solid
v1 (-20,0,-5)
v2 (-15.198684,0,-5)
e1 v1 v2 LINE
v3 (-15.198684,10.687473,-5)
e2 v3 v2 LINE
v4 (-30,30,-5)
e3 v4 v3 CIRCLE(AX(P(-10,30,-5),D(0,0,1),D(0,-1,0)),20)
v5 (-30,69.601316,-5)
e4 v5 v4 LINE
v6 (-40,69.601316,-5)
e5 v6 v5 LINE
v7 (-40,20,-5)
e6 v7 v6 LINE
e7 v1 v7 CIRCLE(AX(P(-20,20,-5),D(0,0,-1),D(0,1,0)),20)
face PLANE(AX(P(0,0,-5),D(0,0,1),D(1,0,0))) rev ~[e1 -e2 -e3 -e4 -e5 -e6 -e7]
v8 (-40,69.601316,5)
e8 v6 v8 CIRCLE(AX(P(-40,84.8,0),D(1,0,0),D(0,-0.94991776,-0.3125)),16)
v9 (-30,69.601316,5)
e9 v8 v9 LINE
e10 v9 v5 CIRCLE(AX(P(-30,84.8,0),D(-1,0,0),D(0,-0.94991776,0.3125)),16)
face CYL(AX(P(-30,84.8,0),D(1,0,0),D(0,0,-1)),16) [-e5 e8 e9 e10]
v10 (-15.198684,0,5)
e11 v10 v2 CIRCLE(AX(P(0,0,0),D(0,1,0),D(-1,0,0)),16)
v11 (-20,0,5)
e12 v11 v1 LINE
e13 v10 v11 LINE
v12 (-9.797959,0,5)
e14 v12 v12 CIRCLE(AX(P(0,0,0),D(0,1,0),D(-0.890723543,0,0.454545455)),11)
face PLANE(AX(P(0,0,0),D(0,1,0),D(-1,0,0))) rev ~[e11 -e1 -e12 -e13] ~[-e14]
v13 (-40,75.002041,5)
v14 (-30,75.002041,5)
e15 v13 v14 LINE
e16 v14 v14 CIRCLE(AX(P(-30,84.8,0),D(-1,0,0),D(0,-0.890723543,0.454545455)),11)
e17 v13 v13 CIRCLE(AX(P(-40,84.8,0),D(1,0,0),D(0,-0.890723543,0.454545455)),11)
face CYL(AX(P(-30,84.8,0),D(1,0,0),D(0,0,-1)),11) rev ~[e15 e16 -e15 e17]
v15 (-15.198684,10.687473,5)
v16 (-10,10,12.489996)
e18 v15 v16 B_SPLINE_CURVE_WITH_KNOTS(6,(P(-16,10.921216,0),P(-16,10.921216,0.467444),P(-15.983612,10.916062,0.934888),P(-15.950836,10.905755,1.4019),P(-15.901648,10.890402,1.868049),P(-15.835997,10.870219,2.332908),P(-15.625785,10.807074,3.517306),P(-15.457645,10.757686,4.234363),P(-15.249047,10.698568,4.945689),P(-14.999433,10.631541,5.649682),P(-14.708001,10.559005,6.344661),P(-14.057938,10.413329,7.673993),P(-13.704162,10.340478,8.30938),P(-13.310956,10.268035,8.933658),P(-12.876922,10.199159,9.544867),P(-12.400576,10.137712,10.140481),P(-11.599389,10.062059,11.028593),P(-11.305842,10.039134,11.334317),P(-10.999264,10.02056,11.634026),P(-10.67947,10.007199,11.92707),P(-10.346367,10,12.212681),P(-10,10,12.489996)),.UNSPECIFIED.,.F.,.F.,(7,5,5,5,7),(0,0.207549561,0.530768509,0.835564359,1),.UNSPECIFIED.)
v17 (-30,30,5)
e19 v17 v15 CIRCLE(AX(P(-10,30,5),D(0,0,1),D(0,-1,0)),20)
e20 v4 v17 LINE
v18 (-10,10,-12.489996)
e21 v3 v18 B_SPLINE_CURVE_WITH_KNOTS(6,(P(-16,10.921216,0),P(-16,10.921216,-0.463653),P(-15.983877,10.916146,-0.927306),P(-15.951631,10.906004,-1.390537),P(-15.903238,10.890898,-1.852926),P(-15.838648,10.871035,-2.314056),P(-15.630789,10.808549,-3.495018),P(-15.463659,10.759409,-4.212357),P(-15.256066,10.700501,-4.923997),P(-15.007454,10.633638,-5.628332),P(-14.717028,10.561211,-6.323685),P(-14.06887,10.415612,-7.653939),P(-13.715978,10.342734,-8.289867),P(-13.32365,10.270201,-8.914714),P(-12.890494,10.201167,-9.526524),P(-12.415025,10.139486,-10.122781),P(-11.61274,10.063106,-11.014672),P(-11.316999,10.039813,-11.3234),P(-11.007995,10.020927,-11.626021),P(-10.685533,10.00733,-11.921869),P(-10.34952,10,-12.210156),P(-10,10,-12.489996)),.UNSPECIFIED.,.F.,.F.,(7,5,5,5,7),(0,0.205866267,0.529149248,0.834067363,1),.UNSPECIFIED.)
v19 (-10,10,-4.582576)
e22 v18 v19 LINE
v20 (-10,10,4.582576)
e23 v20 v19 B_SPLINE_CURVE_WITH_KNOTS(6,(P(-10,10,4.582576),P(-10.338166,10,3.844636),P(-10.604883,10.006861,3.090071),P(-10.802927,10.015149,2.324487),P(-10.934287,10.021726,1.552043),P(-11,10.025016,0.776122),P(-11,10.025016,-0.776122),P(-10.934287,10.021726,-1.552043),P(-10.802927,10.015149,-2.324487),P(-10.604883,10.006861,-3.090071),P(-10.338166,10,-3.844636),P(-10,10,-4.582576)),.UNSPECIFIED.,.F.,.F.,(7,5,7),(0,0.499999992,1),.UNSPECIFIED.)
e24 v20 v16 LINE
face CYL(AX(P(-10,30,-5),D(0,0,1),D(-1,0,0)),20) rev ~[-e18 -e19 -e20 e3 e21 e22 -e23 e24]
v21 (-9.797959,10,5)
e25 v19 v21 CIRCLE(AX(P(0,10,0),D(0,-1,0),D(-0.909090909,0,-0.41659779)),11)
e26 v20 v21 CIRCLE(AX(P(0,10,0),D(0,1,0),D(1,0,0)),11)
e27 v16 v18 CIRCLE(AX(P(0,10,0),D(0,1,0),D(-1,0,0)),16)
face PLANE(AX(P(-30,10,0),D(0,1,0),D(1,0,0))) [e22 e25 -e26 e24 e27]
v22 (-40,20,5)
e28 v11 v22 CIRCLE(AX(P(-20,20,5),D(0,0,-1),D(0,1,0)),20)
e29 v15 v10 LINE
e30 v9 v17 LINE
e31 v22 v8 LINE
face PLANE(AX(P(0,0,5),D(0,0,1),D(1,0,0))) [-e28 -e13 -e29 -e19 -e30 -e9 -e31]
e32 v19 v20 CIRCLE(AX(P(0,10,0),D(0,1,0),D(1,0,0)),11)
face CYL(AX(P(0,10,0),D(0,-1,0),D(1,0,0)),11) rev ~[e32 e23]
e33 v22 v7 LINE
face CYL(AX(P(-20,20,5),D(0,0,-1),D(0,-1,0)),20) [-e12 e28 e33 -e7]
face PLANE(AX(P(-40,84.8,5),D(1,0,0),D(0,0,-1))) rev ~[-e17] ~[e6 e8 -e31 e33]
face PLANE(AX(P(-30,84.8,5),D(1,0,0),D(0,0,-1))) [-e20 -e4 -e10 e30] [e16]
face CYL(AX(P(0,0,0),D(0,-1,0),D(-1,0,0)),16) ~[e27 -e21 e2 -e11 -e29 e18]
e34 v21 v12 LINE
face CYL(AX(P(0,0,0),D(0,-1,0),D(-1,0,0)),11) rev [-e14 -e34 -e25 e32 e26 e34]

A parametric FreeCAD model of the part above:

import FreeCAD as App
import Part
import Sketcher

V = App.Vector


def edges_at(feature, points):
    """Names of the edges that pass closest to the given points."""
    edges = feature.Shape.Edges
    near = lambda p: min(range(len(edges)), key=lambda i: edges[i].distToShape(Part.Vertex(*p))[0])
    return sorted({f"Edge{near(p) + 1}" for p in points})

doc = App.newDocument("Part")
body = doc.addObject("PartDesign::Body", "Body")

# Sketch on XZ plane
sketch1 = doc.addObject("Sketcher::SketchObject", "Sketch")
body.addObject(sketch1)
sketch1.AttachmentSupport = (doc.XZ_Plane, [""])
sketch1.MapMode = "FlatFace"
sketch1.addGeometry(Part.Circle(V(0, 0, 0), V(0, 0, 1), 16), False)
sketch1.addGeometry(Part.Circle(V(0, 0, 0), V(0, 0, 1), 11), False)
sketch1.addConstraint(Sketcher.Constraint("Coincident", 0, 3, -1, 1))
sketch1.addConstraint(Sketcher.Constraint("Coincident", 1, 3, -1, 1))
sketch1.addConstraint(Sketcher.Constraint("Diameter", 1, 22.0))
sketch1.addConstraint(Sketcher.Constraint("Diameter", 0, 32.0))
pad1 = doc.addObject("PartDesign::Pad", "Pad")
body.addObject(pad1)
pad1.Profile = sketch1
pad1.Length = 10
pad1.Reversed = True

# Sketch on XY plane
sketch2 = doc.addObject("Sketcher::SketchObject", "Sketch001")
body.addObject(sketch2)
sketch2.AttachmentSupport = (doc.XY_Plane, [""])
sketch2.MapMode = "FlatFace"
sketch2.addGeometry(Part.LineSegment(V(0, 0, 0), V(0, 10, 0)), False)
sketch2.addGeometry(Part.LineSegment(V(0, 10, 0), V(-30, 10, 0)), False)
sketch2.addGeometry(Part.LineSegment(V(-30, 10, 0), V(-30, 85, 0)), False)
sketch2.addGeometry(Part.LineSegment(V(-30, 85, 0), V(-40, 85, 0)), False)
sketch2.addGeometry(Part.LineSegment(V(-40, 85, 0), V(-40, 0, 0)), False)
sketch2.addGeometry(Part.LineSegment(V(-40, 0, 0), V(0, 0, 0)), False)
sketch2.addConstraint(Sketcher.Constraint("Coincident", 0, 2, 1, 1))
sketch2.addConstraint(Sketcher.Constraint("Coincident", 1, 2, 2, 1))
sketch2.addConstraint(Sketcher.Constraint("Coincident", 2, 2, 3, 1))
sketch2.addConstraint(Sketcher.Constraint("Coincident", 3, 2, 4, 1))
sketch2.addConstraint(Sketcher.Constraint("Coincident", 4, 2, 5, 1))
sketch2.addConstraint(Sketcher.Constraint("Coincident", 5, 2, 0, 1))
sketch2.addConstraint(Sketcher.Constraint("Vertical", 0))
sketch2.addConstraint(Sketcher.Constraint("Horizontal", 1))
sketch2.addConstraint(Sketcher.Constraint("Vertical", 2))
sketch2.addConstraint(Sketcher.Constraint("Horizontal", 3))
sketch2.addConstraint(Sketcher.Constraint("Vertical", 4))
sketch2.addConstraint(Sketcher.Constraint("Horizontal", 5))
sketch2.addConstraint(Sketcher.Constraint("Coincident", 5, 2, -1, 1))
sketch2.addConstraint(Sketcher.Constraint("Equal", 3, 0))
sketch2.addConstraint(Sketcher.Constraint("DistanceX", 1, 2, 1, 1, 30.0))
sketch2.addConstraint(Sketcher.Constraint("DistanceX", 3, 2, 3, 1, 10.0))
sketch2.addConstraint(Sketcher.Constraint("DistanceY", 4, 2, 4, 1, 84.8))
pad2 = doc.addObject("PartDesign::Pad", "Pad001")
body.addObject(pad2)
pad2.Profile = sketch2
pad2.Length = 10
pad2.Midplane = True
doc.recompute()

fillet = doc.addObject("PartDesign::Fillet", "Fillet")
body.addObject(fillet)
fillet.Base = (pad2, edges_at(pad2, [(-40, 0, 0), (-30, 10, 0)]))
fillet.Radius = 20

# Sketch on YZ plane
sketch3 = doc.addObject("Sketcher::SketchObject", "Sketch002")
body.addObject(sketch3)
sketch3.AttachmentSupport = (doc.YZ_Plane, [""])
sketch3.MapMode = "FlatFace"
sketch3.AttachmentOffset = App.Placement(V(0, 0, -30), App.Rotation())
sketch3.addGeometry(Part.Circle(V(85, 0, 0), V(0, 0, 1), 16), False)
sketch3.addGeometry(Part.Circle(V(85, 0, 0), V(0, 0, 1), 11), False)
sketch3.addConstraint(Sketcher.Constraint("Coincident", 1, 3, 0, 3))
sketch3.addConstraint(Sketcher.Constraint("PointOnObject", 0, 3, -1))
sketch3.addConstraint(Sketcher.Constraint("Diameter", 0, 32.0))
sketch3.addConstraint(Sketcher.Constraint("Diameter", 1, 22.0))
sketch3.addConstraint(Sketcher.Constraint("DistanceX", -1, 1, 0, 3, 84.8))
pad3 = doc.addObject("PartDesign::Pad", "Pad002")
body.addObject(pad3)
pad3.Profile = sketch3
pad3.Length = 10
pad3.Reversed = True

# Sketch on XZ plane
sketch4 = doc.addObject("Sketcher::SketchObject", "Sketch003")
body.addObject(sketch4)
sketch4.AttachmentSupport = (doc.XZ_Plane, [""])
sketch4.MapMode = "FlatFace"
sketch4.AttachmentOffset = App.Placement(V(0, 0, -10), App.Rotation())
sketch4.addGeometry(Part.Circle(V(0, 0, 0), V(0, 0, 1), 11), False)
sketch4.addConstraint(Sketcher.Constraint("Coincident", 0, 3, -1, 1))
sketch4.addConstraint(Sketcher.Constraint("Diameter", 0, 22.0))
pocket1 = doc.addObject("PartDesign::Pocket", "Pocket")
body.addObject(pocket1)
pocket1.Profile = sketch4
pocket1.Length = 10
pocket1.Reversed = True

# Sketch on XZ plane
sketch5 = doc.addObject("Sketcher::SketchObject", "Sketch004")
body.addObject(sketch5)
sketch5.AttachmentSupport = (doc.XZ_Plane, [""])
sketch5.MapMode = "FlatFace"
sketch5.AttachmentOffset = App.Placement(V(0, 0, -10), App.Rotation())
sketch5.addGeometry(Part.Circle(V(0, 0, 0), V(0, 0, 1), 11), False)
sketch5.addConstraint(Sketcher.Constraint("Coincident", 0, 3, -1, 1))
sketch5.addConstraint(Sketcher.Constraint("Diameter", 0, 22.0))
pocket2 = doc.addObject("PartDesign::Pocket", "Pocket001")
body.addObject(pocket2)
pocket2.Profile = sketch5
pocket2.Length = 10

# Sketch on YZ plane
sketch6 = doc.addObject("Sketcher::SketchObject", "Sketch005")
body.addObject(sketch6)
sketch6.AttachmentSupport = (doc.YZ_Plane, [""])
sketch6.MapMode = "FlatFace"
sketch6.AttachmentOffset = App.Placement(V(0, 0, -30), App.Rotation())
sketch6.addGeometry(Part.Circle(V(85, 0, 0), V(0, 0, 1), 11), False)
sketch6.addConstraint(Sketcher.Constraint("PointOnObject", 0, 3, -1))
sketch6.addConstraint(Sketcher.Constraint("Diameter", 0, 22.0))
sketch6.addConstraint(Sketcher.Constraint("DistanceX", -1, 1, 0, 3, 84.8))
pocket3 = doc.addObject("PartDesign::Pocket", "Pocket002")
body.addObject(pocket3)
pocket3.Profile = sketch6
pocket3.Length = 10

doc.recompute()
